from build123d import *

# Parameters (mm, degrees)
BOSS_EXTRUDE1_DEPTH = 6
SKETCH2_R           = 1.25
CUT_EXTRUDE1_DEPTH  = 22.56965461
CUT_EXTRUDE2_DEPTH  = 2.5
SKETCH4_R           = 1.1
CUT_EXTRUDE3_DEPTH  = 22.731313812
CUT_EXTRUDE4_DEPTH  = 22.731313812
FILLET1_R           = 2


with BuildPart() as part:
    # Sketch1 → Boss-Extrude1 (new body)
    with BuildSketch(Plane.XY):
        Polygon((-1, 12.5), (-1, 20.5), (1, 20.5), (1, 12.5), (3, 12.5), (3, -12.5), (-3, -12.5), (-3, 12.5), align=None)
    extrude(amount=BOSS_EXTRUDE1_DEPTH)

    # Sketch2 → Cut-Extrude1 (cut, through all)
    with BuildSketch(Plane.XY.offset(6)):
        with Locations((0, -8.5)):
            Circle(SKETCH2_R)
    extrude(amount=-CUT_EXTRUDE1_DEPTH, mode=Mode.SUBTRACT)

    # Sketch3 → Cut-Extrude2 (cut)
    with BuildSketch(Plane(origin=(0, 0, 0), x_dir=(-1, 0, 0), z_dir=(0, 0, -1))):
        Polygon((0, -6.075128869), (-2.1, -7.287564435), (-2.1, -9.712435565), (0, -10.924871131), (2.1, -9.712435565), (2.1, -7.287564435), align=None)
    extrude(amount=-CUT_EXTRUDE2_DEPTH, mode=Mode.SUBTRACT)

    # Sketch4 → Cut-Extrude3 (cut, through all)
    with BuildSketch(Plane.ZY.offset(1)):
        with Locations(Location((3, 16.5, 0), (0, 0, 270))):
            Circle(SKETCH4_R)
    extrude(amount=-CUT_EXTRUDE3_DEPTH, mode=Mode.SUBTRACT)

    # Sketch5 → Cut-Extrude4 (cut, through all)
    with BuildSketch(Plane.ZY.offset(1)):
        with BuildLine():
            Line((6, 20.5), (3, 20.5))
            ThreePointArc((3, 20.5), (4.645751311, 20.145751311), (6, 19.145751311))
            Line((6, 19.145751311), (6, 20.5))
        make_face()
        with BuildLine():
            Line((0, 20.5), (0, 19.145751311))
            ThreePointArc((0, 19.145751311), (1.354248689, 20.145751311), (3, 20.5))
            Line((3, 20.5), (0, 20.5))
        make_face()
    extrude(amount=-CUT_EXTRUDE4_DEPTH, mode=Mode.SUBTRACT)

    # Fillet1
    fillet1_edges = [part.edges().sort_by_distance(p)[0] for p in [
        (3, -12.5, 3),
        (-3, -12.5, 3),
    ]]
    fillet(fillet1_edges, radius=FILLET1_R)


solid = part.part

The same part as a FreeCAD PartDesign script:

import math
import FreeCAD as App
import Part
import Sketcher
from FreeCAD import Vector
Q = App.Units.Quantity


def edges_at(feature, points):
    """Names of the edges that pass closest to the given points."""
    edges = feature.Shape.Edges
    near = lambda p: min(range(len(edges)), key=lambda i: edges[i].distToShape(Part.Vertex(*p))[0])
    return sorted({f"Edge{near(p) + 1}" for p in points})


def add_polygon(sketch, points):
    """Adds a closed chain of lines whose ends are joined by coincident constraints."""
    first, n = sketch.GeometryCount, len(points)
    for a, b in zip(points, points[1:] + points[:1]):
        sketch.addGeometry(Part.LineSegment(App.Vector(*a, 0), App.Vector(*b, 0)), False)
    for i in range(n):
        sketch.addConstraint(Sketcher.Constraint("Coincident", first + i, 2, first + (i + 1) % n, 1))

doc = App.newDocument("Part")
body = doc.addObject("PartDesign::Body", "Body")

# Sketch on XY plane
sketch1 = body.newObject("Sketcher::SketchObject", "Sketch")
sketch1.AttachmentSupport = (doc.getObject("XY_Plane"), [""])
sketch1.MapMode = "FlatFace"
add_polygon(sketch1, [(-1, 20.5), (-1, 12.5), (-3, 12.5), (-3, -12.5), (3, -12.5), (3, 12.5), (1, 12.5), (1, 20.5)])  # lines 0-7
sketch1.addConstraint(Sketcher.Constraint("Vertical", 0))
sketch1.addConstraint(Sketcher.Constraint("Horizontal", 1))
sketch1.addConstraint(Sketcher.Constraint("Vertical", 2))
sketch1.addConstraint(Sketcher.Constraint("Horizontal", 3))
sketch1.addConstraint(Sketcher.Constraint("Vertical", 4))
sketch1.addConstraint(Sketcher.Constraint("Horizontal", 5))
sketch1.addConstraint(Sketcher.Constraint("Vertical", 6))
sketch1.addConstraint(Sketcher.Constraint("Horizontal", 7))
sketch1.addConstraint(Sketcher.Constraint("Symmetric", 1, 2, 3, 2, -1, 1))
sketch1.addConstraint(Sketcher.Constraint("Symmetric", 0, 2, 5, 2, -2))
sketch1.addConstraint(Sketcher.Constraint("Equal", 5, 7))
sketch1.addConstraint(Sketcher.Constraint("DistanceX", 1, 2, 1, 1, 2.0))
sketch1.addConstraint(Sketcher.Constraint("DistanceY", 0, 2, 0, 1, 8.0))
sketch1.addConstraint(Sketcher.Constraint("DistanceY", 2, 2, 2, 1, 25.0))
pad1 = body.newObject("PartDesign::Pad", "Pad")
pad1.Profile = sketch1
pad1.Length = 6

# Sketch on XY plane
sketch2 = body.newObject("Sketcher::SketchObject", "Sketch001")
sketch2.AttachmentSupport = (doc.getObject("XY_Plane"), [""])
sketch2.MapMode = "FlatFace"
sketch2.AttachmentOffset = App.Placement(Vector(0, 0, 6), App.Rotation())
sketch2.addGeometry(Part.Circle(Vector(0, -8.5, 0), Vector(0, 0, 1), 1.2), False)
sketch2.addConstraint(Sketcher.Constraint("PointOnObject", 0, 3, -2))
sketch2.addConstraint(Sketcher.Constraint("Diameter", 0, 2.5))
sketch2.addConstraint(Sketcher.Constraint("DistanceY", 0, 3, -1, 1, 8.5))
pocket1 = body.newObject("PartDesign::Pocket", "Pocket")
pocket1.Profile = sketch2
pocket1.Type = "ThroughAll"

# Sketch on XY plane
sketch3 = body.newObject("Sketcher::SketchObject", "Sketch002")
sketch3.AttachmentSupport = (doc.getObject("XY_Plane"), [""])
sketch3.MapMode = "FlatFace"
add_polygon(sketch3, [(0, -6.1), (2.1, -7.3), (2.1, -9.7), (0, -10.9), (-2.1, -9.7), (-2.1, -7.3)])  # lines 0-5
sketch3.addConstraint(Sketcher.Constraint("Vertical", 1))
sketch3.addConstraint(Sketcher.Constraint("Vertical", 4))
sketch3.addConstraint(Sketcher.Constraint("Symmetric", 1, 2, 3, 2, -2))
sketch3.addConstraint(Sketcher.Constraint("PointOnObject", 2, 2, -2))
sketch3.addConstraint(Sketcher.Constraint("PointOnObject", 5, 2, -2))
sketch3.addConstraint(Sketcher.Constraint("Parallel", 0, 3))
sketch3.addConstraint(Sketcher.Constraint("Parallel", 2, 5))
sketch3.addConstraint(Sketcher.Constraint("Angle", 0, Q("-30 deg")))
sketch3.addConstraint(Sketcher.Constraint("DistanceX", -1, 1, 0, 2, 2.1))
sketch3.addConstraint(Sketcher.Constraint("DistanceY", 1, 2, 1, 1, 2.424871))
sketch3.addConstraint(Sketcher.Constraint("DistanceY", 2, 2, -1, 1, 10.924871))
pocket2 = body.newObject("PartDesign::Pocket", "Pocket001")
pocket2.Profile = sketch3
pocket2.Length = 2.5
pocket2.Reversed = True

# Sketch on YZ plane
sketch4 = body.newObject("Sketcher::SketchObject", "Sketch003")
sketch4.AttachmentSupport = (doc.getObject("YZ_Plane"), [""])
sketch4.MapMode = "FlatFace"
sketch4.AttachmentOffset = App.Placement(Vector(0, 0, -1), App.Rotation())
sketch4.addGeometry(Part.Circle(Vector(16.5, 3, 0), Vector(0, 0, 1), 1.1), False)
sketch4.addConstraint(Sketcher.Constraint("Diameter", 0, 2.2))
sketch4.addConstraint(Sketcher.Constraint("DistanceY", -1, 1, 0, 3, 3.0))
sketch4.addConstraint(Sketcher.Constraint("DistanceX", -1, 1, 0, 3, 16.5))
pocket3 = body.newObject("PartDesign::Pocket", "Pocket002")
pocket3.Profile = sketch4
pocket3.Type = "ThroughAll"
pocket3.Reversed = True

# Sketch on YZ plane
sketch5 = body.newObject("Sketcher::SketchObject", "Sketch004")
sketch5.AttachmentSupport = (doc.getObject("YZ_Plane"), [""])
sketch5.MapMode = "FlatFace"
sketch5.AttachmentOffset = App.Placement(Vector(0, 0, -1), App.Rotation())
sketch5.addGeometry(Part.LineSegment(Vector(20.5, 6, 0), Vector(20.5, 3, 0)), False)
sketch5.addGeometry(Part.ArcOfCircle(Part.Circle(Vector(16.5, 3, 0), Vector(0, 0, 1), 4), math.radians(0), math.radians(49)), False)
sketch5.addGeometry(Part.LineSegment(Vector(19.1, 6, 0), Vector(20.5, 6, 0)), False)
sketch5.addGeometry(Part.LineSegment(Vector(20.5, 0, 0), Vector(19.1, 0, 0)), False)
sketch5.addGeometry(Part.ArcOfCircle(Part.Circle(Vector(16.5, 3, 0), Vector(0, 0, 1), 4), math.radians(-49), math.radians(0)), False)
sketch5.addGeometry(Part.LineSegment(Vector(20.5, 3, 0), Vector(20.5, 0, 0)), False)
sketch5.addConstraint(Sketcher.Constraint("Tangent", 0, 2, 1, 1))
sketch5.addConstraint(Sketcher.Constraint("Coincident", 1, 2, 2, 1))
sketch5.addConstraint(Sketcher.Constraint("Coincident", 2, 2, 0, 1))
sketch5.addConstraint(Sketcher.Constraint("Coincident", 3, 2, 4, 1))
sketch5.addConstraint(Sketcher.Constraint("Tangent", 4, 2, 5, 1))
sketch5.addConstraint(Sketcher.Constraint("Coincident", 5, 2, 3, 1))
sketch5.addConstraint(Sketcher.Constraint("Vertical", 0))
sketch5.addConstraint(Sketcher.Constraint("Horizontal", 2))
sketch5.addConstraint(Sketcher.Constraint("Horizontal", 3))
sketch5.addConstraint(Sketcher.Constraint("Vertical", 5))
sketch5.addConstraint(Sketcher.Constraint("Coincident", 4, 3, 1, 3))
sketch5.addConstraint(Sketcher.Constraint("Equal", 1, 4))
sketch5.addConstraint(Sketcher.Constraint("PointOnObject", 3, 2, -1))
sketch5.addConstraint(Sketcher.Constraint("Vertical", 1, 2, 3, 2))
sketch5.addConstraint(Sketcher.Constraint("Radius", 1, 4.0))
sketch5.addConstraint(Sketcher.Constraint("DistanceY", 0, 2, 0, 1, 3.0))
sketch5.addConstraint(Sketcher.Constraint("DistanceX", -1, 1, 1, 3, 16.5))
pocket4 = body.newObject("PartDesign::Pocket", "Pocket003")
pocket4.Profile = sketch5
pocket4.Type = "ThroughAll"
pocket4.Reversed = True
doc.recompute()

fillet = body.newObject("PartDesign::Fillet", "Fillet")
fillet.Base = (pocket4, edges_at(pocket4, [(3, -12.5, 3), (-3, -12.5, 3)]))
fillet.Radius = 2

doc.recompute()
